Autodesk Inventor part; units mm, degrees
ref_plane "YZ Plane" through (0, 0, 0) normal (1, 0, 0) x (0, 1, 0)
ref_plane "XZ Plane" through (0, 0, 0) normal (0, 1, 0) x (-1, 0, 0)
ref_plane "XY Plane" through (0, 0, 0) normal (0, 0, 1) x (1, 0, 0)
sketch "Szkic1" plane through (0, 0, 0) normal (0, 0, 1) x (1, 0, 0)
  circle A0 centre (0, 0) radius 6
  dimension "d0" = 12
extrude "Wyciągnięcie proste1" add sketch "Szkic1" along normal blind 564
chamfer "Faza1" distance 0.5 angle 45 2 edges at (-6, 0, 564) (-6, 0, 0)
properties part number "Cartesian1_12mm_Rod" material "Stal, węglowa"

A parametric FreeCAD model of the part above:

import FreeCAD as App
import Part
import Sketcher

V = App.Vector
Q = App.Units.Quantity


def edges_at(feature, points):
    """Names of the edges that pass closest to the given points."""
    edges = feature.Shape.Edges
    near = lambda p: min(range(len(edges)), key=lambda i: edges[i].distToShape(Part.Vertex(*p))[0])
    return sorted({f"Edge{near(p) + 1}" for p in points})

doc = App.newDocument("Part")
body = doc.addObject("PartDesign::Body", "Body")

sketch1 = doc.addObject("Sketcher::SketchObject", "Sketch")
body.addObject(sketch1)
sketch1.AttachmentSupport = (doc.XY_Plane, [""])
sketch1.MapMode = "FlatFace"
sketch1.addGeometry(Part.Circle(V(0, 0, 0), V(0, 0, 1), 6), False)
sketch1.addConstraint([
    Sketcher.Constraint("Coincident", 0, 3, -1, 1),
    Sketcher.Constraint("Diameter", 0, Q("12 mm")),
])
pad1 = doc.addObject("PartDesign::Pad", "Pad")
body.addObject(pad1)
pad1.Profile = sketch1
pad1.Length = 564
doc.recompute()

chamfer = doc.addObject("PartDesign::Chamfer", "Chamfer")
body.addObject(chamfer)
chamfer.Base = (pad1, edges_at(pad1, [(-6, 0, 564), (-6, 0, 0)]))
chamfer.Size = 0.5

doc.recompute()
